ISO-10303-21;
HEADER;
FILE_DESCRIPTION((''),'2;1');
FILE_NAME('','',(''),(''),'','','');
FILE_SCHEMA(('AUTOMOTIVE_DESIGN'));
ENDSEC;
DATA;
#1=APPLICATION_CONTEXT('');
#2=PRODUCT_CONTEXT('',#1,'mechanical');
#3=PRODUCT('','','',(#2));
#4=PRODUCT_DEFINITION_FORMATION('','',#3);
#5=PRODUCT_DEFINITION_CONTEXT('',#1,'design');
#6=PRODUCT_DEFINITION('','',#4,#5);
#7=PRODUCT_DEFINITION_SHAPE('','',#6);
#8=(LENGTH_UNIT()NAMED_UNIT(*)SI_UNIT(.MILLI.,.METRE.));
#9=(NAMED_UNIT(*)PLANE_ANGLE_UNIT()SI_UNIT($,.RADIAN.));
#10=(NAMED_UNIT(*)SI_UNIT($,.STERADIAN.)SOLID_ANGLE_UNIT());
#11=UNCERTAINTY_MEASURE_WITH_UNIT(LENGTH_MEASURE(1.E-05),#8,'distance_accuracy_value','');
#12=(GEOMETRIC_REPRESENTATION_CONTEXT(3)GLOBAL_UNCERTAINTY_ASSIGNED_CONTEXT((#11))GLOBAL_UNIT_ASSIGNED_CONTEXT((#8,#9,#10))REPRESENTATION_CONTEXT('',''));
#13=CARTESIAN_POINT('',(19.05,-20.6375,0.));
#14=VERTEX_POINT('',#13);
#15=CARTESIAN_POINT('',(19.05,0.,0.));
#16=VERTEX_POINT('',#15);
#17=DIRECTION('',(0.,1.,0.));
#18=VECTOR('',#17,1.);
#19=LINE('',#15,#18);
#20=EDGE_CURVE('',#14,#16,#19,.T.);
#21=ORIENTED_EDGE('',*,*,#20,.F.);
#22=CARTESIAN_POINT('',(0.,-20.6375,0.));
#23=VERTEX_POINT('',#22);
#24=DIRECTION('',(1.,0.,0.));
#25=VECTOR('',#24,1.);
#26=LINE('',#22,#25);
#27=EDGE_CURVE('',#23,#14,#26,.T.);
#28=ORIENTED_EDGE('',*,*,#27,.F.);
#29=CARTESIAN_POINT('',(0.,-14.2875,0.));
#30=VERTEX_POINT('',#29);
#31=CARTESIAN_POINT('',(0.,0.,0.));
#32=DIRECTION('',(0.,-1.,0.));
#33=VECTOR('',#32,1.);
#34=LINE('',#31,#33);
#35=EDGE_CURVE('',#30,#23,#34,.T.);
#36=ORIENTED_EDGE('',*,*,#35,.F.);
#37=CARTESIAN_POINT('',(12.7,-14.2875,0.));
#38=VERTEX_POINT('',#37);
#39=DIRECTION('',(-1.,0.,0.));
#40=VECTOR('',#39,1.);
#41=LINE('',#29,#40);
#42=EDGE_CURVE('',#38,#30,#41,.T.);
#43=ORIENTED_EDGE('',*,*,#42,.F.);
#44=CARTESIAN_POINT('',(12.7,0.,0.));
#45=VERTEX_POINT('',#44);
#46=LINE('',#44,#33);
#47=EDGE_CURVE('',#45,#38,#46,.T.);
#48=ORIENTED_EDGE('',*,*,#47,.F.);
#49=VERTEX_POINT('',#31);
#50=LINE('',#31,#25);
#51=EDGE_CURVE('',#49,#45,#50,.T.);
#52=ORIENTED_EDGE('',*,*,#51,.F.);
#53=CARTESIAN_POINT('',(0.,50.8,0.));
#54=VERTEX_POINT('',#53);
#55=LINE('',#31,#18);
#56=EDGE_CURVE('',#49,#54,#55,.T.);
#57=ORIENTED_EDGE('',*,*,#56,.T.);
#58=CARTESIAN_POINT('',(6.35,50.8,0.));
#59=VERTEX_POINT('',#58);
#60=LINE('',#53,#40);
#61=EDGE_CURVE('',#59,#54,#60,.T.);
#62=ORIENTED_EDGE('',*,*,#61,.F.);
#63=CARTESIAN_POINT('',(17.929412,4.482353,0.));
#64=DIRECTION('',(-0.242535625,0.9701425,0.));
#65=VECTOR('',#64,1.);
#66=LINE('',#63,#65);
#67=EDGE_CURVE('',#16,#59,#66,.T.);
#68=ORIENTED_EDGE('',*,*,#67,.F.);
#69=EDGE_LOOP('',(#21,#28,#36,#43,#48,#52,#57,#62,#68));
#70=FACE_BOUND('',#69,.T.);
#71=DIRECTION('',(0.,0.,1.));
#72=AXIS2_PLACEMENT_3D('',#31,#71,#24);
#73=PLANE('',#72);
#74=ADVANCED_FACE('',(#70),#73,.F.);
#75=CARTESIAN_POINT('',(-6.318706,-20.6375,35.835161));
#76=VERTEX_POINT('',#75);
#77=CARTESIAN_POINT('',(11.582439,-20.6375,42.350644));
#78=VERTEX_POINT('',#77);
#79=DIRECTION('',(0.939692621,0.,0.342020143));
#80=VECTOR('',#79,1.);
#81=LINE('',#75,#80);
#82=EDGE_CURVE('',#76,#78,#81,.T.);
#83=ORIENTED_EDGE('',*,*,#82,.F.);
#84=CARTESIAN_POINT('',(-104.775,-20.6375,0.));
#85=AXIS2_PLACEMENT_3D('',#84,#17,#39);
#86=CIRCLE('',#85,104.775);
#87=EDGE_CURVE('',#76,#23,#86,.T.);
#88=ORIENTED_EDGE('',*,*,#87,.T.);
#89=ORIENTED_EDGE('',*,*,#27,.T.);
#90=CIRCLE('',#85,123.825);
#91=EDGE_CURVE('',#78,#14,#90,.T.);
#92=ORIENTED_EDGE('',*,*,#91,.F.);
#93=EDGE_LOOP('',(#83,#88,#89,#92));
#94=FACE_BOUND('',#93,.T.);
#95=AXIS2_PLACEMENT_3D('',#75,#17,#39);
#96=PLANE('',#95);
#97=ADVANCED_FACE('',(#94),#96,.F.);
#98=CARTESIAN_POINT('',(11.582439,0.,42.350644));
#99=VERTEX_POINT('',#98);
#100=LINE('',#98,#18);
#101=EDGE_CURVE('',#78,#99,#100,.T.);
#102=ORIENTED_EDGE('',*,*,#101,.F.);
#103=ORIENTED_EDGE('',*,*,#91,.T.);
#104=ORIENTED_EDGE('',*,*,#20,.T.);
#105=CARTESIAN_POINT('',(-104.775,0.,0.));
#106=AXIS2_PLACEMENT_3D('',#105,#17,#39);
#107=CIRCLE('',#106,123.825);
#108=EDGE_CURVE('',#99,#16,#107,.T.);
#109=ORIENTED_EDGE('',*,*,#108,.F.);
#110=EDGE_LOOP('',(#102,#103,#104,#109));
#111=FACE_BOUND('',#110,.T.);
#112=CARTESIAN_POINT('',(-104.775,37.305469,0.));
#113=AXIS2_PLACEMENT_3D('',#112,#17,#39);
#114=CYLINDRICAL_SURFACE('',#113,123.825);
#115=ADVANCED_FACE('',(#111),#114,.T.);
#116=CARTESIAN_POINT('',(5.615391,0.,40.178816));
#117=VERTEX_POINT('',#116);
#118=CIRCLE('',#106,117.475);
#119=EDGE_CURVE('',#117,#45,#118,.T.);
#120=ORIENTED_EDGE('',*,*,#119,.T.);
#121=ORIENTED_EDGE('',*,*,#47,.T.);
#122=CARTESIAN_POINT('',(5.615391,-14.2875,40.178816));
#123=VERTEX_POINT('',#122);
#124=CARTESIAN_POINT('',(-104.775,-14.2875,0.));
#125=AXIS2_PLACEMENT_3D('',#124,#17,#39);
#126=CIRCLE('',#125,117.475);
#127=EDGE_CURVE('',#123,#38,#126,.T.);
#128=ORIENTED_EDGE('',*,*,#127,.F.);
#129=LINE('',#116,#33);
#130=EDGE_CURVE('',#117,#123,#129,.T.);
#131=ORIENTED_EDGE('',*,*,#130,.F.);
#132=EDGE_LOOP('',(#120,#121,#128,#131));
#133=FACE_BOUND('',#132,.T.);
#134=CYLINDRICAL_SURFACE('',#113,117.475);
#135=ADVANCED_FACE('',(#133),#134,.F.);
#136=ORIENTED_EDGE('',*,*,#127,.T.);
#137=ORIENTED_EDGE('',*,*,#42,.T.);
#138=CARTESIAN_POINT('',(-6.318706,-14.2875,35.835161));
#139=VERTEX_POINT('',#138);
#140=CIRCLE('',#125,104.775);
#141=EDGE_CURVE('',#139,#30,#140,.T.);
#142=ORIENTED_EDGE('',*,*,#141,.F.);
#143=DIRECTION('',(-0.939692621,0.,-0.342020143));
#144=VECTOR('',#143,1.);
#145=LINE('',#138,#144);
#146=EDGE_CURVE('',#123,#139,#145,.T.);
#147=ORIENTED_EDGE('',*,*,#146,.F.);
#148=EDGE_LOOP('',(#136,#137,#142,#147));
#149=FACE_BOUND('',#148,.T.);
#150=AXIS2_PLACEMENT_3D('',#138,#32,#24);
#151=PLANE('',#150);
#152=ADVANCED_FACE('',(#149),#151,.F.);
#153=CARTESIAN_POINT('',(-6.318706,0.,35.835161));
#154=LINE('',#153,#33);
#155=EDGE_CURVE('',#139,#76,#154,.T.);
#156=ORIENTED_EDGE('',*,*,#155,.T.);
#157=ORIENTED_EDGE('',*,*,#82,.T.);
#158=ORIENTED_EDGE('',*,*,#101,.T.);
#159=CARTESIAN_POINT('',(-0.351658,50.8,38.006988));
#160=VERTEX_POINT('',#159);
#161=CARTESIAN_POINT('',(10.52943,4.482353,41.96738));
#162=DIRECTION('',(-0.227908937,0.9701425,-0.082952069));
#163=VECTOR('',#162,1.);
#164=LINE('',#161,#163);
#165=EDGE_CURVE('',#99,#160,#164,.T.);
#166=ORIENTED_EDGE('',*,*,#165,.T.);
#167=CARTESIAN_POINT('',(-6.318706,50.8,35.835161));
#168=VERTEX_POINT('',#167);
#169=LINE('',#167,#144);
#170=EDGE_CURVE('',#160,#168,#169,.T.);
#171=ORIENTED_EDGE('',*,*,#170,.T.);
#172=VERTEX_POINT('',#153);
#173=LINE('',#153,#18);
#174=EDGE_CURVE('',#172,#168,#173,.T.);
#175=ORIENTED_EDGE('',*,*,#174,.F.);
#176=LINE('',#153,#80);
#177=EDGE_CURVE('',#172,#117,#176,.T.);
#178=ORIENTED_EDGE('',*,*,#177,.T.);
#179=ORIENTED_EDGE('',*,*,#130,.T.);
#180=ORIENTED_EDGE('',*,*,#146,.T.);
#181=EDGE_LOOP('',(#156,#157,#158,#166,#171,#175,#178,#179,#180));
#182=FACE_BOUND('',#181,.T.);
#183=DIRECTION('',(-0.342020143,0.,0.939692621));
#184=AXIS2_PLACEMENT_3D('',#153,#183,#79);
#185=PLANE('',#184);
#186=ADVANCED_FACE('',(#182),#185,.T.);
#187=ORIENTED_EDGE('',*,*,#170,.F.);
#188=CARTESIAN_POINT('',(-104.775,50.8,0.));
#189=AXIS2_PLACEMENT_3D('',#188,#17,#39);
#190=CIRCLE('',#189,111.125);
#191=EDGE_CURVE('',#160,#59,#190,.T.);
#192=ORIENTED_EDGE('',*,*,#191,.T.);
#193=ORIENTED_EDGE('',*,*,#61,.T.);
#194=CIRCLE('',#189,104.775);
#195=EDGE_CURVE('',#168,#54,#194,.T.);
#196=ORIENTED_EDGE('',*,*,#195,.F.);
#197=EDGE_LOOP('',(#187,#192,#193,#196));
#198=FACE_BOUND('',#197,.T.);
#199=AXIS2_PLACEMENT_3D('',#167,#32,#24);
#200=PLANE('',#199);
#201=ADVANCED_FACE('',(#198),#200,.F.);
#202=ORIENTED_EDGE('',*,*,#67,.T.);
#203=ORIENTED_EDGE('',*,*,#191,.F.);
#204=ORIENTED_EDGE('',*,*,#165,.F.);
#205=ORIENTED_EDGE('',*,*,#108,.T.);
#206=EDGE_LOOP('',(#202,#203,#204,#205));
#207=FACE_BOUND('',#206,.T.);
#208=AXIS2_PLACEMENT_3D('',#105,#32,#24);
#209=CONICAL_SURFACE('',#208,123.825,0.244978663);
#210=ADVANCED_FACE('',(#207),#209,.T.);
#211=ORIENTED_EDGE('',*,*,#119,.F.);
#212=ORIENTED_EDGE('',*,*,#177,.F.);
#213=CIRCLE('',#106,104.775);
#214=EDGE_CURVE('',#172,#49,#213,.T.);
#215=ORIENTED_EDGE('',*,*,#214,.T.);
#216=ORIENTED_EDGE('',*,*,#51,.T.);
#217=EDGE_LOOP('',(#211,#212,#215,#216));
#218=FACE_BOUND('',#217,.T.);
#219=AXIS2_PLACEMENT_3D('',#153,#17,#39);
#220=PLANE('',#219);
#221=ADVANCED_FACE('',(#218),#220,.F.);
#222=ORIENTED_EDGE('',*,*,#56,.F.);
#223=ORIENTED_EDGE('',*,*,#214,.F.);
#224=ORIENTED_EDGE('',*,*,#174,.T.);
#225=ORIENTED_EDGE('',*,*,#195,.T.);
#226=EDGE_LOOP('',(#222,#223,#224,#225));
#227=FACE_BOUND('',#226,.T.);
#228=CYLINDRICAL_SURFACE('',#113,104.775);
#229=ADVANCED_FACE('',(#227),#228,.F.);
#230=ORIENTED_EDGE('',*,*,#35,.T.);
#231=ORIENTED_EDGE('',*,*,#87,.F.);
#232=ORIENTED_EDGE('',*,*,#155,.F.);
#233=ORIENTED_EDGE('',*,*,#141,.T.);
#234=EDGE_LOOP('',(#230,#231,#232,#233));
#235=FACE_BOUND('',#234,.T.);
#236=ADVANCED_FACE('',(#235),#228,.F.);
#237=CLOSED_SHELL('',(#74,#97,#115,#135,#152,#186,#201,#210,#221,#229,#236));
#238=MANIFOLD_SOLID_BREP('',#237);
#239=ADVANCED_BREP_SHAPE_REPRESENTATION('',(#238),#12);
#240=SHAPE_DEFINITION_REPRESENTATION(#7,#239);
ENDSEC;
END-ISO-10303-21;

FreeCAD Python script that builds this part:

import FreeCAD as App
import Part
import Sketcher

V = App.Vector
Q = App.Units.Quantity

doc = App.newDocument("Part")
body = doc.addObject("PartDesign::Body", "Body")

# Sketch on XY plane
sketch1 = body.newObject("Sketcher::SketchObject", "Sketch")
sketch1.AttachmentSupport = (doc.getObject("XY_Plane"), [""])
sketch1.MapMode = "FlatFace"
sketch1.addGeometry(Part.LineSegment(V(19.05, 0, 0), V(6.35, 50.8, 0)), False)
sketch1.addGeometry(Part.LineSegment(V(6.35, 50.8, 0), V(0, 50.8, 0)), False)
sketch1.addGeometry(Part.LineSegment(V(0, 50.8, 0), V(0, 0, 0)), False)
sketch1.addGeometry(Part.LineSegment(V(0, 0, 0), V(12.7, 0, 0)), False)
sketch1.addGeometry(Part.LineSegment(V(12.7, 0, 0), V(12.7, -14.2875, 0)), False)
sketch1.addGeometry(Part.LineSegment(V(12.7, -14.2875, 0), V(0, -14.2875, 0)), False)
sketch1.addGeometry(Part.LineSegment(V(0, -14.2875, 0), V(0, -20.6375, 0)), False)
sketch1.addGeometry(Part.LineSegment(V(0, -20.6375, 0), V(19.05, -20.6375, 0)), False)
sketch1.addGeometry(Part.LineSegment(V(19.05, -20.6375, 0), V(19.05, 0, 0)), False)
sketch1.addGeometry(Part.LineSegment(V(-104.775, 50.8, 0), V(-104.775, -20.6375, 0)), True)  # axis
sketch1.addConstraint(Sketcher.Constraint("Coincident", 0, 2, 1, 1))
sketch1.addConstraint(Sketcher.Constraint("Coincident", 1, 2, 2, 1))
sketch1.addConstraint(Sketcher.Constraint("Coincident", 2, 2, 3, 1))
sketch1.addConstraint(Sketcher.Constraint("Coincident", 3, 2, 4, 1))
sketch1.addConstraint(Sketcher.Constraint("Coincident", 4, 2, 5, 1))
sketch1.addConstraint(Sketcher.Constraint("Coincident", 5, 2, 6, 1))
sketch1.addConstraint(Sketcher.Constraint("Coincident", 6, 2, 7, 1))
sketch1.addConstraint(Sketcher.Constraint("Coincident", 7, 2, 8, 1))
sketch1.addConstraint(Sketcher.Constraint("Coincident", 8, 2, 0, 1))
sketch1.addConstraint(Sketcher.Constraint("Horizontal", 1))
sketch1.addConstraint(Sketcher.Constraint("Vertical", 2))
sketch1.addConstraint(Sketcher.Constraint("Horizontal", 3))
sketch1.addConstraint(Sketcher.Constraint("Vertical", 4))
sketch1.addConstraint(Sketcher.Constraint("Horizontal", 5))
sketch1.addConstraint(Sketcher.Constraint("Vertical", 6))
sketch1.addConstraint(Sketcher.Constraint("Horizontal", 7))
sketch1.addConstraint(Sketcher.Constraint("Vertical", 8))
sketch1.addConstraint(Sketcher.Constraint("Vertical", 9))
sketch1.addConstraint(Sketcher.Constraint("Coincident", 2, 2, -1, 1))
sketch1.addConstraint(Sketcher.Constraint("PointOnObject", 5, 2, -2))
sketch1.addConstraint(Sketcher.Constraint("PointOnObject", 8, 2, -1))
sketch1.addConstraint(Sketcher.Constraint("Horizontal", 1, 2, 9, 1))
sketch1.addConstraint(Sketcher.Constraint("Horizontal", 7, 2, 9, 2))
sketch1.addConstraint(Sketcher.Constraint("Equal", 1, 6))
sketch1.addConstraint(Sketcher.Constraint("DistanceY", 2, 2, 2, 1, Q("2 in")))
sketch1.addConstraint(Sketcher.Constraint("DistanceX", 3, 1, 3, 2, Q("0.5 in")))
sketch1.addConstraint(Sketcher.Constraint("DistanceX", 1, 2, 1, 1, Q("0.25 in")))
sketch1.addConstraint(Sketcher.Constraint("DistanceX", 7, 1, 7, 2, Q("0.75 in")))
sketch1.addConstraint(Sketcher.Constraint("DistanceY", 4, 2, 4, 1, Q("0.5625 in")))
sketch1.addConstraint(Sketcher.Constraint("DistanceX", 9, 1, -1, 1, Q("4.125 in")))
revolution = body.newObject("PartDesign::Revolution", "Revolution")
revolution.Profile = sketch1
revolution.ReferenceAxis = (sketch1, ["Axis0"])
revolution.Angle = 20

doc.recompute()
